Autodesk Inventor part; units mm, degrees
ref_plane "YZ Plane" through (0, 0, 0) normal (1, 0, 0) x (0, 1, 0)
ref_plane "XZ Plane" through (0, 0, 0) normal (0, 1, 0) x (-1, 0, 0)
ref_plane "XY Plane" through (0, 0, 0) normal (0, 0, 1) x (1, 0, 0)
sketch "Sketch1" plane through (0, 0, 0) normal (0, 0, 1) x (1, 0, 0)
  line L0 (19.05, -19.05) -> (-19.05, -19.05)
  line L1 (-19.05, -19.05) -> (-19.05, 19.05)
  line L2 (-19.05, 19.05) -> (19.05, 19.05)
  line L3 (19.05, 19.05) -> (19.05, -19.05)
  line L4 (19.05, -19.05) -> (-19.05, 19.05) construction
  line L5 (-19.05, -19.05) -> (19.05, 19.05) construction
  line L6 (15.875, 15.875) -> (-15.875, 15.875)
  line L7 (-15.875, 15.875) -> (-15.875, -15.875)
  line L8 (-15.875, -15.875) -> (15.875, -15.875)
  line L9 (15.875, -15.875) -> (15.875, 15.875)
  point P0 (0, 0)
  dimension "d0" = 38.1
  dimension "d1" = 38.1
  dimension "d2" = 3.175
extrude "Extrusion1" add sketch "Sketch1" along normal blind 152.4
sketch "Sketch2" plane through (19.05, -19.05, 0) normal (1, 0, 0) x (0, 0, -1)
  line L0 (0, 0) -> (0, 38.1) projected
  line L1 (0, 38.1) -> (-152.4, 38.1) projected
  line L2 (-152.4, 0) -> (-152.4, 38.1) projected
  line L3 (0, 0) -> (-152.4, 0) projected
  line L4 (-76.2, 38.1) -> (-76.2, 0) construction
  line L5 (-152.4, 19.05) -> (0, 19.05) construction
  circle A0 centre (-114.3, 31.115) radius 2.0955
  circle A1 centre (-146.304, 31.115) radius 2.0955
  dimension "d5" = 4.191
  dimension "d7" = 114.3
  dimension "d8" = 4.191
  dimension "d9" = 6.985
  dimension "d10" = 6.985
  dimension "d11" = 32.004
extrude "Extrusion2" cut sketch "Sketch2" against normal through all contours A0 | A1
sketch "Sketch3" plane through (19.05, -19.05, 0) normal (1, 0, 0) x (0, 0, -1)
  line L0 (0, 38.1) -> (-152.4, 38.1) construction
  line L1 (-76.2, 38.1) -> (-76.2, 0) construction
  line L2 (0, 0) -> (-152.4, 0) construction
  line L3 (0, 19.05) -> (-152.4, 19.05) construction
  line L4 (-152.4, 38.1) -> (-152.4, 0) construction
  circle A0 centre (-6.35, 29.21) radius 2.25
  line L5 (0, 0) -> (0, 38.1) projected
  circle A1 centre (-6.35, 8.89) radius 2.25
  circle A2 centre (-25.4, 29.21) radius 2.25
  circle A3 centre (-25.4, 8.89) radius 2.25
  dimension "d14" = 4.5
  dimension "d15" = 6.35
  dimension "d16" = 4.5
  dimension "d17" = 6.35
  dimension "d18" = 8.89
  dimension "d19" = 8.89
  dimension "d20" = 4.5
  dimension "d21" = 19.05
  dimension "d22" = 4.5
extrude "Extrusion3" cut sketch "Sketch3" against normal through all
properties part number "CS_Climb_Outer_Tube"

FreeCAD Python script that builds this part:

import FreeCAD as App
import Part
import Sketcher
Q = App.Units.Quantity


def add_polygon(sketch, points):
    """Adds a closed chain of lines whose ends are joined by coincident constraints."""
    first, n = sketch.GeometryCount, len(points)
    for a, b in zip(points, points[1:] + points[:1]):
        sketch.addGeometry(Part.LineSegment(App.Vector(*a, 0), App.Vector(*b, 0)), False)
    for i in range(n):
        sketch.addConstraint(Sketcher.Constraint("Coincident", first + i, 2, first + (i + 1) % n, 1))

doc = App.newDocument("Part")
body = doc.addObject("PartDesign::Body", "Body")

# Sketch on XY plane
sketch1 = body.newObject("Sketcher::SketchObject", "Sketch")
sketch1.AttachmentSupport = (doc.getObject("XY_Plane"), [""])
sketch1.MapMode = "FlatFace"
add_polygon(sketch1, [(-19.05, -19.05), (19.05, -19.05), (19.05, 19.05), (-19.05, 19.05)])  # lines 0-3
add_polygon(sketch1, [(-15.875, 15.875), (15.875, 15.875), (15.875, -15.875), (-15.875, -15.875)])  # lines 4-7
sketch1.addConstraint([
    Sketcher.Constraint("Horizontal", 0),
    Sketcher.Constraint("Vertical", 1),
    Sketcher.Constraint("Horizontal", 2),
    Sketcher.Constraint("Vertical", 3),
    Sketcher.Constraint("Horizontal", 4),
    Sketcher.Constraint("Vertical", 5),
    Sketcher.Constraint("Horizontal", 6),
    Sketcher.Constraint("Vertical", 7),
    Sketcher.Constraint("Symmetric", 0, 2, 2, 2, -1, 1),
    Sketcher.Constraint("Symmetric", 4, 2, 6, 2, -1, 1),
    Sketcher.Constraint("Equal", 2, 1),
    Sketcher.Constraint("Equal", 6, 5),
    Sketcher.Constraint("DistanceX", 0, 1, 0, 2, Q("1.5 in")),
    Sketcher.Constraint("DistanceX", 4, 2, 1, 2, Q("0.125 in")),
])
pad1 = body.newObject("PartDesign::Pad", "Pad")
pad1.Profile = sketch1
pad1.Length = Q("6 in")

# Sketch on YZ plane
sketch2 = body.newObject("Sketcher::SketchObject", "Sketch001")
sketch2.AttachmentSupport = (doc.getObject("YZ_Plane"), [""])
sketch2.MapMode = "FlatFace"
sketch2.AttachmentOffset = App.Placement(App.Vector(0, 0, 0.75 * 25.4), App.Rotation())
sketch2.addGeometry([
    Part.Circle(App.Vector(12.065, 114.3, 0), App.Vector(0, 0, 1), 2.0955),
    Part.Circle(App.Vector(12.065, 146.304, 0), App.Vector(0, 0, 1), 2.0955),
], False)
sketch2.addConstraint([
    Sketcher.Constraint("Equal", 0, 1),
    Sketcher.Constraint("Vertical", 0, 3, 1, 3),
    Sketcher.Constraint("Diameter", 0, Q("0.165 in")),
    Sketcher.Constraint("DistanceY", -1, 1, 0, 3, Q("4.5 in")),
    Sketcher.Constraint("DistanceY", 0, 3, 1, 3, Q("1.26 in")),
    Sketcher.Constraint("DistanceX", -1, 1, 0, 3, Q("0.475 in")),
])
pocket1 = body.newObject("PartDesign::Pocket", "Pocket")
pocket1.Profile = sketch2
pocket1.Type = "ThroughAll"

# Sketch on YZ plane
sketch3 = body.newObject("Sketcher::SketchObject", "Sketch002")
sketch3.AttachmentSupport = (doc.getObject("YZ_Plane"), [""])
sketch3.MapMode = "FlatFace"
sketch3.AttachmentOffset = App.Placement(App.Vector(0, 0, 0.75 * 25.4), App.Rotation())
sketch3.addGeometry([
    Part.Circle(App.Vector(10.16, 6.35, 0), App.Vector(0, 0, 1), 2.25),
    Part.Circle(App.Vector(-10.16, 6.35, 0), App.Vector(0, 0, 1), 2.25),
    Part.Circle(App.Vector(10.16, 25.4, 0), App.Vector(0, 0, 1), 2.25),
    Part.Circle(App.Vector(-10.16, 25.4, 0), App.Vector(0, 0, 1), 2.25),
], False)
sketch3.addConstraint([
    Sketcher.Constraint("Equal", 0, 1),
    Sketcher.Constraint("Equal", 1, 2),
    Sketcher.Constraint("Equal", 2, 3),
    Sketcher.Constraint("Symmetric", 0, 3, 1, 3, -2),
    Sketcher.Constraint("Symmetric", 2, 3, 3, 3, -2),
    Sketcher.Constraint("Vertical", 0, 3, 2, 3),
    Sketcher.Constraint("Diameter", 0, Q("4.5 mm")),
    Sketcher.Constraint("DistanceY", -1, 1, 0, 3, Q("0.25 in")),
    Sketcher.Constraint("DistanceY", 0, 3, 2, 3, Q("0.75 in")),
    Sketcher.Constraint("DistanceX", -1, 1, 0, 3, Q("0.4 in")),
])
pocket2 = body.newObject("PartDesign::Pocket", "Pocket001")
pocket2.Profile = sketch3
pocket2.Type = "ThroughAll"

doc.recompute()
